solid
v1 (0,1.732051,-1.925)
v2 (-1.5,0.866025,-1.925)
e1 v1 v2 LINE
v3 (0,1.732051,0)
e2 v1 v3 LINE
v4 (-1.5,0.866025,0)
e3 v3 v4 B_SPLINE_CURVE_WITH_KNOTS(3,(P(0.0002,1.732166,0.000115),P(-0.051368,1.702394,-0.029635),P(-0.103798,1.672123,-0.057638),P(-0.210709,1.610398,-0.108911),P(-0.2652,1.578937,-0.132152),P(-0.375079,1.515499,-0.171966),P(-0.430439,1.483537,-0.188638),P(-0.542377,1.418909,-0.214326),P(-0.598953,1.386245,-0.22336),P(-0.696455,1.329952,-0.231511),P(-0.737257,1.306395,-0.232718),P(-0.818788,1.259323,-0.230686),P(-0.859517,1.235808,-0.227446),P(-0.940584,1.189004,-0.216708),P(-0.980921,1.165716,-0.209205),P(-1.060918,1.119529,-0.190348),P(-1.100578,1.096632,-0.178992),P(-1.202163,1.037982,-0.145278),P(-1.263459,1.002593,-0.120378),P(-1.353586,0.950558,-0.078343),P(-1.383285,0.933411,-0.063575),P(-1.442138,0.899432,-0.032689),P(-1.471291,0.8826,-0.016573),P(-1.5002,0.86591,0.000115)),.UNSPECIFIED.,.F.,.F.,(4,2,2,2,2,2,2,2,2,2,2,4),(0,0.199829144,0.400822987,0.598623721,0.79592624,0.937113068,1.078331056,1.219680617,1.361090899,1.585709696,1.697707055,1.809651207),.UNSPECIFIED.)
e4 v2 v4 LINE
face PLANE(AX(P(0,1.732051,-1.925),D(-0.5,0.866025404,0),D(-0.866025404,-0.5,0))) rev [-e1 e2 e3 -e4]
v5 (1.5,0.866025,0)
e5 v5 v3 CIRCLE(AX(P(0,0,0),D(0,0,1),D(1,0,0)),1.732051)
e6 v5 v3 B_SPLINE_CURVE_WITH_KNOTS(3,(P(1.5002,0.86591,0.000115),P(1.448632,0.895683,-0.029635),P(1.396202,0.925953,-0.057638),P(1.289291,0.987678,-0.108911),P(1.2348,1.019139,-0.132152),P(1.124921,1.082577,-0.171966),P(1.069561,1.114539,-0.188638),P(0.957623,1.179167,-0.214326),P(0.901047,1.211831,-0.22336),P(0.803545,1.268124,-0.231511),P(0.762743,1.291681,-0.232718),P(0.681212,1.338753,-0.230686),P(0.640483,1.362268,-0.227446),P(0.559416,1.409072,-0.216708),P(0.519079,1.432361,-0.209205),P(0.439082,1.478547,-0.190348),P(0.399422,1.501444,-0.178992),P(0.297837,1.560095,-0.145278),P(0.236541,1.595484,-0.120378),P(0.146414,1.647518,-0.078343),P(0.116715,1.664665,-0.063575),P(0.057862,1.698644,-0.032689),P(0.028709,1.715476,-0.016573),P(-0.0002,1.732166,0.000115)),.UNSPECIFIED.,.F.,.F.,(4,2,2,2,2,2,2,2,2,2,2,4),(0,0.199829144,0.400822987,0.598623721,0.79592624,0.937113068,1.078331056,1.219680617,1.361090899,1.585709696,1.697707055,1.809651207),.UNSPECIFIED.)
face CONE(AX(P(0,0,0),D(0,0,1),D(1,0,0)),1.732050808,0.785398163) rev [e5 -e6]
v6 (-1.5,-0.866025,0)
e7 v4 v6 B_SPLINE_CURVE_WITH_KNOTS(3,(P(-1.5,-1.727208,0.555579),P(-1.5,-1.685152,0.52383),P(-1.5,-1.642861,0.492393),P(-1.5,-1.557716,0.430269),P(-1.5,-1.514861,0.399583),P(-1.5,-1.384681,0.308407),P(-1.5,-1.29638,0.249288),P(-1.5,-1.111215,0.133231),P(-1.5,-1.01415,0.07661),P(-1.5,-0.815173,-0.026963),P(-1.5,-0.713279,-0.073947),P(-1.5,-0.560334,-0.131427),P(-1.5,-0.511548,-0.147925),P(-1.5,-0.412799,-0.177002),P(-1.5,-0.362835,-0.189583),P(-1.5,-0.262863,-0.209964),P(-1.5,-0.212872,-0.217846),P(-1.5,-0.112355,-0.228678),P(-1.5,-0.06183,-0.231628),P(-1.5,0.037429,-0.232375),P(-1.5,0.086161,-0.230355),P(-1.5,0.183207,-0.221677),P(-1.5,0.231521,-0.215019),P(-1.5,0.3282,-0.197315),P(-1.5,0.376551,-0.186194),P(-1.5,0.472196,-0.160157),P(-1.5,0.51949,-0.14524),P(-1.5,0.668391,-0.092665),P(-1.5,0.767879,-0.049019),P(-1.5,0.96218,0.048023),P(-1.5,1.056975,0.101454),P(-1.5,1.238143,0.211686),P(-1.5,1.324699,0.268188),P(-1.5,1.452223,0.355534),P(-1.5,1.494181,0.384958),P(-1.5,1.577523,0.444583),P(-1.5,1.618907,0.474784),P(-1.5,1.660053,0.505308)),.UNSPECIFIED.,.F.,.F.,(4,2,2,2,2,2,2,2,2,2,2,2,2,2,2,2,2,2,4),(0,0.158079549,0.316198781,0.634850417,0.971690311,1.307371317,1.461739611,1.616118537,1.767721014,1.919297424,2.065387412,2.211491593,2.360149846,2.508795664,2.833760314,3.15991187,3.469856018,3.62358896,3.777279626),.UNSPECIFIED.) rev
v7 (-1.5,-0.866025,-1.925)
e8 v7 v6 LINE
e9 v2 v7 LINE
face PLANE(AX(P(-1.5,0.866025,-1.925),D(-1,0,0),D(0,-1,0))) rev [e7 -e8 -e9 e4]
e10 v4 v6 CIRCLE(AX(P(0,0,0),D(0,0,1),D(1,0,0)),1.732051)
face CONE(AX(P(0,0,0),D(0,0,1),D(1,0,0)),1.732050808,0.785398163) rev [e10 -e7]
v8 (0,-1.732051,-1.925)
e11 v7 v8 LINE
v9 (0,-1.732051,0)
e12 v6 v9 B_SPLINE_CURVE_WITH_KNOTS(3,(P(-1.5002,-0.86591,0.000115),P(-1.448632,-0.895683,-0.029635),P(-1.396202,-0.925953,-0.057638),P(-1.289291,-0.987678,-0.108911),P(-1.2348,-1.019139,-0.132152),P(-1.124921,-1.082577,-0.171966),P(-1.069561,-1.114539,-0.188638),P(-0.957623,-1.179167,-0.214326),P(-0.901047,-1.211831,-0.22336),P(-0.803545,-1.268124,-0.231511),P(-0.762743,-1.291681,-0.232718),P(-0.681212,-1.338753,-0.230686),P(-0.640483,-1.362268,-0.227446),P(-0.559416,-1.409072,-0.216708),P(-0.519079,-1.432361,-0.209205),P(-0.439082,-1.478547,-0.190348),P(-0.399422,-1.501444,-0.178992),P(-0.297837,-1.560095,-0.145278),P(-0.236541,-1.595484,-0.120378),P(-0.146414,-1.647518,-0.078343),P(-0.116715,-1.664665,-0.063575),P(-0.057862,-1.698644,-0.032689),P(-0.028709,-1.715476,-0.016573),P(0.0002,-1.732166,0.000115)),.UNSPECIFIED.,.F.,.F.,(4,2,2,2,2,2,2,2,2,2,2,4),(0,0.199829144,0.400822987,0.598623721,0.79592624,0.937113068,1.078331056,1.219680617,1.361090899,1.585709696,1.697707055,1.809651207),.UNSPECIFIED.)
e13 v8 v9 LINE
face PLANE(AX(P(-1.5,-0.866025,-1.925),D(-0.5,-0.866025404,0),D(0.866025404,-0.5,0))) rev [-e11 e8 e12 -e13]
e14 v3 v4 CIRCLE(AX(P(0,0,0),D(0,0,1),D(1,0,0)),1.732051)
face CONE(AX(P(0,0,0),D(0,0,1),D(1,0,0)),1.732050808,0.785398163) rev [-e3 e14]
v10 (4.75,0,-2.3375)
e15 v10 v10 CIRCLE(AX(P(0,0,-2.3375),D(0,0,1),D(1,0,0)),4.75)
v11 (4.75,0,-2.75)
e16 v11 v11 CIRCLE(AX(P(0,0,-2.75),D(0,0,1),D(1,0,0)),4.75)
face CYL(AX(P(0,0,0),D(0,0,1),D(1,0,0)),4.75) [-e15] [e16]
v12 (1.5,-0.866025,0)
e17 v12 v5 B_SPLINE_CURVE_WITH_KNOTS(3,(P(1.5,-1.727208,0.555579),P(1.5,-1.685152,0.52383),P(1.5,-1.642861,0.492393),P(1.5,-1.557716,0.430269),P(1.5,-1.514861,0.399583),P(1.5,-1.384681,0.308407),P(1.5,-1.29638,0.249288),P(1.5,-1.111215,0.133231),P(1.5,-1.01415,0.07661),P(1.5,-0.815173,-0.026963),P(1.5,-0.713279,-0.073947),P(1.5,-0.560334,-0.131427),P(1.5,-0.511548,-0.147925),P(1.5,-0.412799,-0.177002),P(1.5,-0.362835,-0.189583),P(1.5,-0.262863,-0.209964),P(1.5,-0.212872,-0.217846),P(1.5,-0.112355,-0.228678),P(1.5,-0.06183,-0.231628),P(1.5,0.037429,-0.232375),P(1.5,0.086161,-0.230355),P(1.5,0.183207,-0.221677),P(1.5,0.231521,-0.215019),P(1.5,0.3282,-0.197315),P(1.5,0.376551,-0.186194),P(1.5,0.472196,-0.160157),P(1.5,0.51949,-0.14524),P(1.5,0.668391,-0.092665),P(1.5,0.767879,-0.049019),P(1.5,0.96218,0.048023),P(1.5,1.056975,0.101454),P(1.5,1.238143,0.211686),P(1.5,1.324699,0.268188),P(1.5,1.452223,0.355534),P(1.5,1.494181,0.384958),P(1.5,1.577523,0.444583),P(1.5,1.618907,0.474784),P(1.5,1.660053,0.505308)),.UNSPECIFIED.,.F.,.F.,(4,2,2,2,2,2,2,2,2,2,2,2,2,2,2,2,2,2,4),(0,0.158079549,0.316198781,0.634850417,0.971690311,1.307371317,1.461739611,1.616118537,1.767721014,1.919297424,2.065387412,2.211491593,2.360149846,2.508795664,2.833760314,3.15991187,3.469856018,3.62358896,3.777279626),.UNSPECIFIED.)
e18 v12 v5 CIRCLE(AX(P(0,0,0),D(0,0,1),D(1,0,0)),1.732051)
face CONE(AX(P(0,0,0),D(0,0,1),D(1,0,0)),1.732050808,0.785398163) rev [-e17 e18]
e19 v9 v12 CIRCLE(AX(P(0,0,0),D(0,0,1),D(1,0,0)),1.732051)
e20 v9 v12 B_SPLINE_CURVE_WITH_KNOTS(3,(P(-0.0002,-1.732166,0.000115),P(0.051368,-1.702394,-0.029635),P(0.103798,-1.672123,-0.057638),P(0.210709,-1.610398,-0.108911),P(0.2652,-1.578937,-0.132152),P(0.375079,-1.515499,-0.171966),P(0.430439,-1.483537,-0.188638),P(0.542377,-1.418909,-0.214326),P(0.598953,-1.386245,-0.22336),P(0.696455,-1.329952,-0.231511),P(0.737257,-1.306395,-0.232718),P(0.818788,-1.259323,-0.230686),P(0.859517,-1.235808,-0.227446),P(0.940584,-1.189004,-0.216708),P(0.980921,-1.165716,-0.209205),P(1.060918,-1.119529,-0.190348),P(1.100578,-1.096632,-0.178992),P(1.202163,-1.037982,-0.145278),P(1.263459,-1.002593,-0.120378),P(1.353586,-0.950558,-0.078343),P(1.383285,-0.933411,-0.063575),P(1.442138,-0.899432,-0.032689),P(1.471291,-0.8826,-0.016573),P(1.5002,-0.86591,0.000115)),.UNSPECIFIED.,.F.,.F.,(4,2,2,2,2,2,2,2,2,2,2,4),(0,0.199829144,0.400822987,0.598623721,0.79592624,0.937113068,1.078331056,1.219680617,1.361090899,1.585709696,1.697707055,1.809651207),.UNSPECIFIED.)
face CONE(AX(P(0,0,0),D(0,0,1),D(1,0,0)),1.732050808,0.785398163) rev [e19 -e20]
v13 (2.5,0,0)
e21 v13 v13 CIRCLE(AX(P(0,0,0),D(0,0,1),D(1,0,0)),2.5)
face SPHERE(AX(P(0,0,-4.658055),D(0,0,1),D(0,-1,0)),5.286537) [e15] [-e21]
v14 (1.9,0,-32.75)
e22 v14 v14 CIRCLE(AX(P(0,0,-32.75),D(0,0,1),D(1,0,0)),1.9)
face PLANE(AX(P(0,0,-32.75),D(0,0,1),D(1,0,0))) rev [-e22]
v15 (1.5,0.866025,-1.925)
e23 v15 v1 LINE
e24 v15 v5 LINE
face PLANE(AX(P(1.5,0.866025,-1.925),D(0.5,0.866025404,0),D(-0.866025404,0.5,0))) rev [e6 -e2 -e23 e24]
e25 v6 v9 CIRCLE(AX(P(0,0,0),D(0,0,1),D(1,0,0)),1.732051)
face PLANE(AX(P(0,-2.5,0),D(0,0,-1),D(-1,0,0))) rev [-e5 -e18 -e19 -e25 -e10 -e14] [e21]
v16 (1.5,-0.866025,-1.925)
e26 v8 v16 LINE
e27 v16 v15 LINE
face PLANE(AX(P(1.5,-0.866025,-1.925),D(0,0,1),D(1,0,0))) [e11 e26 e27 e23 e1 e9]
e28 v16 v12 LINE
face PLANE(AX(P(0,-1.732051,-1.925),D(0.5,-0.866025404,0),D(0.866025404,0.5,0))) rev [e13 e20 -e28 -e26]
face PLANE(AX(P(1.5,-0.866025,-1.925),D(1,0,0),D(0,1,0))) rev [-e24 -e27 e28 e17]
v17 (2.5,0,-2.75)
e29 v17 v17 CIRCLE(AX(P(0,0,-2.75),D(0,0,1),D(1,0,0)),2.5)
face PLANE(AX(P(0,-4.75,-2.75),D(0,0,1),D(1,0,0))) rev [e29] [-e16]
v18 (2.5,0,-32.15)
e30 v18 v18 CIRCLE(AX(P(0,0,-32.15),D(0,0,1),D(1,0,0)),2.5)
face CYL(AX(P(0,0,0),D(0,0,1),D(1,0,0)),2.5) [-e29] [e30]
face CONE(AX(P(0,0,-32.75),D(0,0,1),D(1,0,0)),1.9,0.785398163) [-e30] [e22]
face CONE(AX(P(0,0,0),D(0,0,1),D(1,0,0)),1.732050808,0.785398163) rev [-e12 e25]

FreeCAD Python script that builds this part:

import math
import FreeCAD as App
import Part
import Sketcher
Q = App.Units.Quantity


def faces_at(feature, points):
    """Names of the faces that lie closest to the given points."""
    faces = feature.Shape.Faces
    near = lambda p: min(range(len(faces)), key=lambda i: faces[i].distToShape(Part.Vertex(*p))[0])
    return sorted({f"Face{near(p) + 1}" for p in points})


def add_polygon(sketch, points):
    """Adds a closed chain of lines whose ends are joined by coincident constraints."""
    first, n = sketch.GeometryCount, len(points)
    for a, b in zip(points, points[1:] + points[:1]):
        sketch.addGeometry(Part.LineSegment(App.Vector(*a, 0), App.Vector(*b, 0)), False)
    for i in range(n):
        sketch.addConstraint(Sketcher.Constraint("Coincident", first + i, 2, first + (i + 1) % n, 1))

doc = App.newDocument("Part")
body = doc.addObject("PartDesign::Body", "Body")

# Sketch on YZ plane
sketch1 = body.newObject("Sketcher::SketchObject", "Sketch")
sketch1.AttachmentSupport = (doc.getObject("YZ_Plane"), [""])
sketch1.MapMode = "FlatFace"
add_polygon(sketch1, [(1.9, -32.8), (2.5, -32.1), (2.5, -2.8), (0, -2.8), (0, -32.8)])  # lines 0-4
sketch1.addConstraint(Sketcher.Constraint("Vertical", 1))
sketch1.addConstraint(Sketcher.Constraint("Horizontal", 2))
sketch1.addConstraint(Sketcher.Constraint("Vertical", 3))
sketch1.addConstraint(Sketcher.Constraint("Horizontal", 4))
sketch1.addConstraint(Sketcher.Constraint("PointOnObject", 2, 2, -2))
sketch1.addConstraint(Sketcher.Constraint("DistanceY", 3, 2, 3, 1, Q("30 mm")))
sketch1.addConstraint(Sketcher.Constraint("Angle", 0, Q("45 deg")))
sketch1.addConstraint(Sketcher.Constraint("DistanceX", 2, 2, 2, 1, Q("2.5 mm")))
sketch1.addConstraint(Sketcher.Constraint("DistanceX", 4, 1, 4, 2, Q("1.9 mm")))
sketch1.addConstraint(Sketcher.Constraint("DistanceY", 0, 2, -1, 1, Q("32.15 mm")))
revolution = body.newObject("PartDesign::Revolution", "Revolution")
revolution.Profile = sketch1
revolution.ReferenceAxis = (sketch1, ["V_Axis"])
revolution.Angle = 360

# Sketch on YZ plane
sketch2 = body.newObject("Sketcher::SketchObject", "Sketch001")
sketch2.AttachmentSupport = (doc.getObject("YZ_Plane"), [""])
sketch2.MapMode = "FlatFace"
sketch2.addGeometry(Part.LineSegment(App.Vector(4.75, -2.75, 0), App.Vector(4.75, -2.34, 0)), False)
sketch2.addGeometry(Part.ArcOfCircle(Part.Circle(App.Vector(0, -4.66, 0), App.Vector(0, 0, 1), 5.29), math.radians(26), math.radians(62)), False)
sketch2.addGeometry(Part.LineSegment(App.Vector(2.5, 0, 0), App.Vector(0, 0, 0)), False)
sketch2.addGeometry(Part.LineSegment(App.Vector(0, 0, 0), App.Vector(0, -2.75, 0)), False)
sketch2.addGeometry(Part.LineSegment(App.Vector(0, -2.75, 0), App.Vector(4.75, -2.75, 0)), False)
sketch2.addConstraint(Sketcher.Constraint("Coincident", 0, 2, 1, 1))
sketch2.addConstraint(Sketcher.Constraint("Coincident", 1, 2, 2, 1))
sketch2.addConstraint(Sketcher.Constraint("Coincident", 2, 2, 3, 1))
sketch2.addConstraint(Sketcher.Constraint("Coincident", 3, 2, 4, 1))
sketch2.addConstraint(Sketcher.Constraint("Coincident", 4, 2, 0, 1))
sketch2.addConstraint(Sketcher.Constraint("Vertical", 0))
sketch2.addConstraint(Sketcher.Constraint("Horizontal", 2))
sketch2.addConstraint(Sketcher.Constraint("Vertical", 3))
sketch2.addConstraint(Sketcher.Constraint("Horizontal", 4))
sketch2.addConstraint(Sketcher.Constraint("Coincident", 2, 2, -1, 1))
sketch2.addConstraint(Sketcher.Constraint("PointOnObject", 1, 3, -2))
sketch2.addConstraint(Sketcher.Constraint("DistanceX", 2, 2, 2, 1, Q("2.5 mm")))
sketch2.addConstraint(Sketcher.Constraint("DistanceX", 4, 1, 4, 2, Q("4.75 mm")))
sketch2.addConstraint(Sketcher.Constraint("DistanceY", 3, 2, 3, 1, Q("2.75 mm")))
sketch2.addConstraint(Sketcher.Constraint("DistanceY", 0, 1, 0, 2, Q("0.4125 mm")))
revolution2 = body.newObject("PartDesign::Revolution", "Revolution001")
revolution2.Profile = sketch2
revolution2.ReferenceAxis = (sketch2, ["V_Axis"])
revolution2.Angle = 180
revolution2.Reversed = True

# Sketch on YZ plane
sketch3 = body.newObject("Sketcher::SketchObject", "Sketch002")
sketch3.AttachmentSupport = (doc.getObject("YZ_Plane"), [""])
sketch3.MapMode = "FlatFace"
sketch3.addGeometry(Part.LineSegment(App.Vector(4.75, -2.75, 0), App.Vector(4.75, -2.34, 0)), False)
sketch3.addGeometry(Part.ArcOfCircle(Part.Circle(App.Vector(0, -4.66, 0), App.Vector(0, 0, 1), 5.29), math.radians(26), math.radians(62)), False)
sketch3.addGeometry(Part.LineSegment(App.Vector(2.5, 0, 0), App.Vector(0, 0, 0)), False)
sketch3.addGeometry(Part.LineSegment(App.Vector(0, 0, 0), App.Vector(0, -2.75, 0)), False)
sketch3.addGeometry(Part.LineSegment(App.Vector(0, -2.75, 0), App.Vector(4.75, -2.75, 0)), False)
sketch3.addConstraint(Sketcher.Constraint("Coincident", 0, 2, 1, 1))
sketch3.addConstraint(Sketcher.Constraint("Coincident", 1, 2, 2, 1))
sketch3.addConstraint(Sketcher.Constraint("Coincident", 2, 2, 3, 1))
sketch3.addConstraint(Sketcher.Constraint("Coincident", 3, 2, 4, 1))
sketch3.addConstraint(Sketcher.Constraint("Coincident", 4, 2, 0, 1))
sketch3.addConstraint(Sketcher.Constraint("Vertical", 0))
sketch3.addConstraint(Sketcher.Constraint("Horizontal", 2))
sketch3.addConstraint(Sketcher.Constraint("Vertical", 3))
sketch3.addConstraint(Sketcher.Constraint("Horizontal", 4))
sketch3.addConstraint(Sketcher.Constraint("Coincident", 2, 2, -1, 1))
sketch3.addConstraint(Sketcher.Constraint("PointOnObject", 1, 3, -2))
sketch3.addConstraint(Sketcher.Constraint("DistanceX", 2, 2, 2, 1, Q("2.5 mm")))
sketch3.addConstraint(Sketcher.Constraint("DistanceX", 4, 1, 4, 2, Q("4.75 mm")))
sketch3.addConstraint(Sketcher.Constraint("DistanceY", 3, 2, 3, 1, Q("2.75 mm")))
sketch3.addConstraint(Sketcher.Constraint("DistanceY", 0, 1, 0, 2, Q("0.4125 mm")))
revolution3 = body.newObject("PartDesign::Revolution", "Revolution002")
revolution3.Profile = sketch3
revolution3.ReferenceAxis = (sketch3, ["V_Axis"])
revolution3.Angle = 180

# Sketch on XY plane
sketch4 = body.newObject("Sketcher::SketchObject", "Sketch003")
sketch4.AttachmentSupport = (doc.getObject("XY_Plane"), [""])
sketch4.MapMode = "FlatFace"
add_polygon(sketch4, [(1.5, -0.9), (1.5, 0.9), (0, 1.7), (-1.5, 0.9), (-1.5, -0.9), (0, -1.7)])  # lines 0-5
sketch4.addConstraint(Sketcher.Constraint("Vertical", 0))
sketch4.addConstraint(Sketcher.Constraint("Vertical", 3))
sketch4.addConstraint(Sketcher.Constraint("Symmetric", 0, 2, 3, 2, -1, 1))
sketch4.addConstraint(Sketcher.Constraint("Symmetric", 1, 2, 4, 2, -1, 1))
sketch4.addConstraint(Sketcher.Constraint("PointOnObject", 1, 2, -2))
sketch4.addConstraint(Sketcher.Constraint("Parallel", 2, 5))
sketch4.addConstraint(Sketcher.Constraint("Horizontal", 0, 2, 2, 2))
sketch4.addConstraint(Sketcher.Constraint("Angle", 1, Q("150 deg")))
sketch4.addConstraint(Sketcher.Constraint("DistanceX", 2, 2, 0, 2, Q("3 mm")))
sketch4.addConstraint(Sketcher.Constraint("DistanceY", 0, 1, 0, 2, Q("1.732051 mm")))
pocket1 = body.newObject("PartDesign::Pocket", "Pocket")
pocket1.Profile = sketch4
pocket1.Length = 1.925
body2 = doc.addObject("PartDesign::Body", "Body001")

# Sketch on XY plane
sketch5 = body2.newObject("Sketcher::SketchObject", "Sketch004")
sketch5.AttachmentSupport = (doc.getObject("XY_Plane001"), [""])
sketch5.MapMode = "FlatFace"
sketch5.addGeometry(Part.Circle(App.Vector(0, 0, 0), App.Vector(0, 0, 1), 1.7), False)
sketch5.addConstraint(Sketcher.Constraint("Coincident", 0, 3, -1, 1))
sketch5.addConstraint(Sketcher.Constraint("Diameter", 0, Q("3.464102 mm")))
pad1 = body2.newObject("PartDesign::Pad", "Pad")
pad1.Profile = sketch5
pad1.Length = 1.925
pad1.Reversed = True
doc.recompute()

draft = body2.newObject("PartDesign::Draft", "Draft")
draft.Base = (pad1, faces_at(pad1, [(-1.732, 0, -0.963)]))
draft.NeutralPlane = (doc.getObject("XY_Plane001"), [""])
draft.Angle = 45
draft.Reversed = True
doc.recompute()

boolean = body.newObject("PartDesign::Boolean", "Boolean")
boolean.Type = "Cut"
boolean.addObjects([body2])

doc.recompute()
